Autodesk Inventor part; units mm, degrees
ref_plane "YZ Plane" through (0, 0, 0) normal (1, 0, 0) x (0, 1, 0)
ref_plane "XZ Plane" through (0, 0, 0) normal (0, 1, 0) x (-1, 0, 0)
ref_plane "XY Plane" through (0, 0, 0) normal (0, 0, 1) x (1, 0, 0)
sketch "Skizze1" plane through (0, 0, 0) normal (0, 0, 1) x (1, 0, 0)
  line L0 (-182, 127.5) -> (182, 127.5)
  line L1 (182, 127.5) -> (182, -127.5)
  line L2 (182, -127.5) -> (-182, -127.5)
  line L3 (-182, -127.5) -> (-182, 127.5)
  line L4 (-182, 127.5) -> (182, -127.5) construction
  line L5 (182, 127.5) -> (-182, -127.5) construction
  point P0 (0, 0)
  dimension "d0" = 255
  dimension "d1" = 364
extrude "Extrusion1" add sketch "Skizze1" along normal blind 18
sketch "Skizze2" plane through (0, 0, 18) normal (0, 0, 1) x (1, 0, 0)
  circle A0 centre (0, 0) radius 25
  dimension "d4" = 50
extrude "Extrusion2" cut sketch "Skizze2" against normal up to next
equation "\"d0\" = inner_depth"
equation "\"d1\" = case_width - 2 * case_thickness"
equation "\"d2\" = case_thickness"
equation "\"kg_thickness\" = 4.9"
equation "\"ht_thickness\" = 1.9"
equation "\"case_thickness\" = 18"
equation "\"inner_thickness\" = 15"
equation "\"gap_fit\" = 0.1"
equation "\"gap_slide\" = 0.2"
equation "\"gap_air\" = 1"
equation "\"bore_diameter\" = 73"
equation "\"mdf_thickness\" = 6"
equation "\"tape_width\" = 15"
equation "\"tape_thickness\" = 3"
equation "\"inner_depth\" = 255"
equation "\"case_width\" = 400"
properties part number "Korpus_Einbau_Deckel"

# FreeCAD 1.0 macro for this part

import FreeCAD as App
import Part
import Sketcher

V = App.Vector


def add_polygon(sketch, points):
    """Adds a closed chain of lines whose ends are joined by coincident constraints."""
    first, n = sketch.GeometryCount, len(points)
    for a, b in zip(points, points[1:] + points[:1]):
        sketch.addGeometry(Part.LineSegment(App.Vector(*a, 0), App.Vector(*b, 0)), False)
    for i in range(n):
        sketch.addConstraint(Sketcher.Constraint("Coincident", first + i, 2, first + (i + 1) % n, 1))

doc = App.newDocument("Part")
params = doc.addObject("Spreadsheet::Sheet", "Params")
for row, (alias, value) in enumerate([
    ("sketch1_width", "364 mm"),
    ("sketch1_height", "255 mm"),
    ("pad1_length", "18 mm"),
    ("sketch2_diameter", "50 mm"),
], start=1):
    params.set(f"A{row}", alias)
    params.set(f"B{row}", "=" + value)
    params.setAlias(f"B{row}", alias)

body = doc.addObject("PartDesign::Body", "Body")

# Sketch on XY plane
sketch1 = body.newObject("Sketcher::SketchObject", "Sketch")
sketch1.AttachmentSupport = (doc.getObject("XY_Plane"), [""])
sketch1.MapMode = "FlatFace"
add_polygon(sketch1, [(182, 127.5), (-182, 127.5), (-182, -127.5), (182, -127.5)])  # lines 0-3
sketch1.addConstraint(Sketcher.Constraint("Horizontal", 0))
sketch1.addConstraint(Sketcher.Constraint("Vertical", 1))
sketch1.addConstraint(Sketcher.Constraint("Horizontal", 2))
sketch1.addConstraint(Sketcher.Constraint("Vertical", 3))
sketch1.addConstraint(Sketcher.Constraint("Symmetric", 0, 2, 2, 2, -1, 1))
sketch1.addConstraint(Sketcher.Constraint("DistanceX", 0, 2, 0, 1, 364.0))
sketch1.addConstraint(Sketcher.Constraint("DistanceY", 1, 2, 1, 1, 255.0))
sketch1.setExpression("Constraints[9]", "Params.sketch1_width")
sketch1.setExpression("Constraints[10]", "Params.sketch1_height")
pad1 = body.newObject("PartDesign::Pad", "Pad")
pad1.Profile = sketch1
pad1.setExpression("Length", "Params.pad1_length")

# Sketch on XY plane
sketch2 = body.newObject("Sketcher::SketchObject", "Sketch001")
sketch2.AttachmentSupport = (doc.getObject("XY_Plane"), [""])
sketch2.MapMode = "FlatFace"
sketch2.AttachmentOffset = App.Placement(V(0, 0, 18), App.Rotation())
sketch2.addGeometry(Part.Circle(V(0, 0, 0), V(0, 0, 1), 25), False)
sketch2.addConstraint(Sketcher.Constraint("Coincident", 0, 3, -1, 1))
sketch2.addConstraint(Sketcher.Constraint("Diameter", 0, 50.0))
sketch2.setExpression("Constraints[1]", "Params.sketch2_diameter")
pocket1 = body.newObject("PartDesign::Pocket", "Pocket")
pocket1.Profile = sketch2
pocket1.Type = "UpToFirst"

doc.recompute()
